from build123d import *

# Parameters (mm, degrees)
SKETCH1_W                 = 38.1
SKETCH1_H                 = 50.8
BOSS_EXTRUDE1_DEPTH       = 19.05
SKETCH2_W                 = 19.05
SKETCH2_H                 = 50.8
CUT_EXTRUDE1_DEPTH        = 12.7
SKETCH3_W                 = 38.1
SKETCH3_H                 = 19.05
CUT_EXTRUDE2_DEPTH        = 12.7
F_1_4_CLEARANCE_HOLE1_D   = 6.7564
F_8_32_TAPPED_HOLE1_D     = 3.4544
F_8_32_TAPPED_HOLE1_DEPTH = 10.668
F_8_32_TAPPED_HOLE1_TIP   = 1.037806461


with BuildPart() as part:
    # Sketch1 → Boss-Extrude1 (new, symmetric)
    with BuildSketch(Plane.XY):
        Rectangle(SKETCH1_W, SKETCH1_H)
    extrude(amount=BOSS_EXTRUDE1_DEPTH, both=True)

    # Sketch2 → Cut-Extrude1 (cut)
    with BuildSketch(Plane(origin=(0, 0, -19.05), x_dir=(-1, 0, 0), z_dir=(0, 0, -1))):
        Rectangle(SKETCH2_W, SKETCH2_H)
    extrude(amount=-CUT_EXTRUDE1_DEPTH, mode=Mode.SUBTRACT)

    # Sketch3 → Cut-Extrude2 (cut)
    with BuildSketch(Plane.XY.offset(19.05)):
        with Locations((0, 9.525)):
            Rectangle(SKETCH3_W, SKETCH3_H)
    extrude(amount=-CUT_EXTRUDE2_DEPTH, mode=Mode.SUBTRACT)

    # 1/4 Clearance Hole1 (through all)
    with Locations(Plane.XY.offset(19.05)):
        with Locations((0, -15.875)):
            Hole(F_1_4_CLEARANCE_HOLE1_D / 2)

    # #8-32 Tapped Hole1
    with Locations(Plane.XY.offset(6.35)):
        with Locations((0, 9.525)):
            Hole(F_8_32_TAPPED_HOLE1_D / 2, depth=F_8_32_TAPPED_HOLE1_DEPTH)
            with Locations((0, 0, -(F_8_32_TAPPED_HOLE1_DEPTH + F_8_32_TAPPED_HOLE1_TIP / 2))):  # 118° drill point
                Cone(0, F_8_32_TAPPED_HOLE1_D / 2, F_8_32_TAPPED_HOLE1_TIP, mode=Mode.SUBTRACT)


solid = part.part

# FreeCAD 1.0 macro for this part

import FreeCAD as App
import Part
import Sketcher
from FreeCAD import Vector
Q = App.Units.Quantity

doc = App.newDocument("Part")
body = doc.addObject("PartDesign::Body", "Body")

# Sketch on XY plane
sketch1 = body.newObject("Sketcher::SketchObject", "Sketch")
sketch1.AttachmentSupport = (doc.getObject("XY_Plane"), [""])
sketch1.MapMode = "FlatFace"
sketch1.addGeometry([
    Part.LineSegment(Vector(-19, 25, 0), Vector(-19, -25, 0)),
    Part.LineSegment(Vector(-19, -25, 0), Vector(19, -25, 0)),
    Part.LineSegment(Vector(19, -25, 0), Vector(19, 25, 0)),
    Part.LineSegment(Vector(19, 25, 0), Vector(-19, 25, 0)),
], False)
sketch1.addConstraint([
    Sketcher.Constraint("Coincident", 0, 2, 1, 1),
    Sketcher.Constraint("Coincident", 1, 2, 2, 1),
    Sketcher.Constraint("Coincident", 2, 2, 3, 1),
    Sketcher.Constraint("Coincident", 3, 2, 0, 1),
    Sketcher.Constraint("Vertical", 0),
    Sketcher.Constraint("Horizontal", 1),
    Sketcher.Constraint("Vertical", 2),
    Sketcher.Constraint("Horizontal", 3),
    Sketcher.Constraint("Symmetric", 0, 2, 2, 2, -1, 1),
    Sketcher.Constraint("DistanceY", 0, 2, 0, 1, Q("2 in")),
    Sketcher.Constraint("DistanceX", 1, 1, 1, 2, Q("1.5 in")),
])
pad1 = body.newObject("PartDesign::Pad", "Pad")
pad1.Profile = sketch1
pad1.Length = Q("1.5 in")
pad1.Midplane = True

# Sketch on XY plane
sketch2 = body.newObject("Sketcher::SketchObject", "Sketch001")
sketch2.AttachmentSupport = (doc.getObject("XY_Plane"), [""])
sketch2.MapMode = "FlatFace"
sketch2.AttachmentOffset = App.Placement(Vector(0, 0, -0.75 * 25.4), App.Rotation())
sketch2.addGeometry([
    Part.LineSegment(Vector(10, 25, 0), Vector(10, -25, 0)),
    Part.LineSegment(Vector(10, -25, 0), Vector(-10, -25, 0)),
    Part.LineSegment(Vector(-10, -25, 0), Vector(-10, 25, 0)),
    Part.LineSegment(Vector(-10, 25, 0), Vector(10, 25, 0)),
], False)
sketch2.addConstraint([
    Sketcher.Constraint("Coincident", 0, 2, 1, 1),
    Sketcher.Constraint("Coincident", 1, 2, 2, 1),
    Sketcher.Constraint("Coincident", 2, 2, 3, 1),
    Sketcher.Constraint("Coincident", 3, 2, 0, 1),
    Sketcher.Constraint("Vertical", 0),
    Sketcher.Constraint("Horizontal", 1),
    Sketcher.Constraint("Vertical", 2),
    Sketcher.Constraint("Horizontal", 3),
    Sketcher.Constraint("Symmetric", 0, 2, 2, 2, -1, 1),
    Sketcher.Constraint("DistanceY", 0, 2, 0, 1, Q("2 in")),
    Sketcher.Constraint("DistanceX", 1, 2, 1, 1, Q("0.75 in")),
])
pocket1 = body.newObject("PartDesign::Pocket", "Pocket")
pocket1.Profile = sketch2
pocket1.Length = Q("0.5 in")
pocket1.Reversed = True

# Sketch on XY plane
sketch3 = body.newObject("Sketcher::SketchObject", "Sketch002")
sketch3.AttachmentSupport = (doc.getObject("XY_Plane"), [""])
sketch3.MapMode = "FlatFace"
sketch3.AttachmentOffset = App.Placement(Vector(0, 0, 0.75 * 25.4), App.Rotation())
sketch3.addGeometry([
    Part.LineSegment(Vector(-19, 19, 0), Vector(-19, 0, 0)),
    Part.LineSegment(Vector(-19, 0, 0), Vector(19, 0, 0)),
    Part.LineSegment(Vector(19, 0, 0), Vector(19, 19, 0)),
    Part.LineSegment(Vector(19, 19, 0), Vector(-19, 19, 0)),
], False)
sketch3.addConstraint([
    Sketcher.Constraint("Coincident", 0, 2, 1, 1),
    Sketcher.Constraint("Coincident", 1, 2, 2, 1),
    Sketcher.Constraint("Coincident", 2, 2, 3, 1),
    Sketcher.Constraint("Coincident", 3, 2, 0, 1),
    Sketcher.Constraint("Vertical", 0),
    Sketcher.Constraint("Horizontal", 1),
    Sketcher.Constraint("Vertical", 2),
    Sketcher.Constraint("Horizontal", 3),
    Sketcher.Constraint("Symmetric", 0, 2, 1, 2, -1, 1),
    Sketcher.Constraint("DistanceX", 1, 1, 1, 2, Q("1.5 in")),
    Sketcher.Constraint("DistanceY", 0, 2, 0, 1, Q("0.75 in")),
])
pocket2 = body.newObject("PartDesign::Pocket", "Pocket001")
pocket2.Profile = sketch3
pocket2.Length = Q("0.5 in")

# Sketch on XY plane
sketch4 = body.newObject("Sketcher::SketchObject", "Sketch003")
sketch4.AttachmentSupport = (doc.getObject("XY_Plane"), [""])
sketch4.MapMode = "FlatFace"
sketch4.AttachmentOffset = App.Placement(Vector(0, 0, 0.75 * 25.4), App.Rotation())
sketch4.addGeometry(Part.Circle(Vector(0, -15.9, 0), Vector(0, 0, 1), 3.4), False)
sketch4.addConstraint([
    Sketcher.Constraint("PointOnObject", 0, 3, -2),
    Sketcher.Constraint("Diameter", 0, Q("0.266 in")),
    Sketcher.Constraint("DistanceY", 0, 3, -1, 1, Q("0.625 in")),
])
doc.recompute()
hole = body.newObject("PartDesign::Hole", "Hole")
hole.Profile = sketch4
hole.ThreadType = "None"
hole.Diameter = Q("0.266 in")
hole.DepthType = "ThroughAll"

# Sketch on XY plane
sketch5 = body.newObject("Sketcher::SketchObject", "Sketch004")
sketch5.AttachmentSupport = (doc.getObject("XY_Plane"), [""])
sketch5.MapMode = "FlatFace"
sketch5.AttachmentOffset = App.Placement(Vector(0, 0, 0.25 * 25.4), App.Rotation())
sketch5.addGeometry(Part.Circle(Vector(0, 9.5, 0), Vector(0, 0, 1), 1.7), False)
sketch5.addConstraint([
    Sketcher.Constraint("PointOnObject", 0, 3, -2),
    Sketcher.Constraint("Diameter", 0, Q("0.136 in")),
    Sketcher.Constraint("DistanceY", -1, 1, 0, 3, Q("0.375 in")),
])
doc.recompute()
hole2 = body.newObject("PartDesign::Hole", "Hole001")
hole2.Profile = sketch5
hole2.ThreadType = "None"
hole2.Diameter = Q("0.136 in")
hole2.DepthType = "Dimension"
hole2.Depth = Q("0.42 in")
hole2.DrillPoint = "Angled"
hole2.DrillPointAngle = 118

doc.recompute()
